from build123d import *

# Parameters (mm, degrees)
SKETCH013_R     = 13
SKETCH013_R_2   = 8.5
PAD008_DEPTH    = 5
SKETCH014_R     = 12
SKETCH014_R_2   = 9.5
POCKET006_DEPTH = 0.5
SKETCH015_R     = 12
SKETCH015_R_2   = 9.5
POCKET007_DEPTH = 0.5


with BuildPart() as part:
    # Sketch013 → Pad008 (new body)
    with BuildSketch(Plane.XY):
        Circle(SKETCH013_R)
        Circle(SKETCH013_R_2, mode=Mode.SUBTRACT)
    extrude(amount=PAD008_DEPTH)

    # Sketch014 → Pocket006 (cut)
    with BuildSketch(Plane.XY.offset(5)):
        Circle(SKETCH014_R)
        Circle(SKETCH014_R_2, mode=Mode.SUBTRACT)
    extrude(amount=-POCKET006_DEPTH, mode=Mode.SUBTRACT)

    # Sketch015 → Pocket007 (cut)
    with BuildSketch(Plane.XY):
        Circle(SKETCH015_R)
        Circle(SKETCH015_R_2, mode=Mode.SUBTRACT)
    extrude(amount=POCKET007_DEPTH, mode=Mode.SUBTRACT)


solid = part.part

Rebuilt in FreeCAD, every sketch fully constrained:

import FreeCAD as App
import Part
import Sketcher
Q = App.Units.Quantity

doc = App.newDocument("Part")
params = doc.addObject("Spreadsheet::Sheet", "Params")
for row, (alias, value) in enumerate([
    ("sketch1_diameter", "26 mm"),
    ("sketch1_diameter2", "17 mm"),
    ("pad1_length", "5 mm"),
    ("sketch2_diameter", "24 mm"),
    ("sketch2_diameter2", "19 mm"),
    ("pocket1_length", "0.5 mm"),
    ("sketch3_diameter", "24 mm"),
    ("sketch3_diameter2", "19 mm"),
    ("pocket2_length", "0.5 mm"),
], start=1):
    params.set(f"A{row}", alias)
    params.set(f"B{row}", "=" + value)
    params.setAlias(f"B{row}", alias)

body = doc.addObject("PartDesign::Body", "Body")

# Sketch on XY plane
sketch1 = body.newObject("Sketcher::SketchObject", "Sketch")
sketch1.AttachmentSupport = (doc.getObject("XY_Plane"), [""])
sketch1.MapMode = "FlatFace"
sketch1.addGeometry([
    Part.Circle(App.Vector(0, 0, 0), App.Vector(0, 0, 1), 13),
    Part.Circle(App.Vector(0, 0, 0), App.Vector(0, 0, 1), 8.5),
], False)
sketch1.addConstraint([
    Sketcher.Constraint("Coincident", 0, 3, -1, 1),
    Sketcher.Constraint("Coincident", 1, 3, -1, 1),
    Sketcher.Constraint("Diameter", 0, Q("26 mm")),
    Sketcher.Constraint("Diameter", 1, Q("17 mm")),
])
sketch1.setExpression("Constraints[2]", "Params.sketch1_diameter")
sketch1.setExpression("Constraints[3]", "Params.sketch1_diameter2")
pad1 = body.newObject("PartDesign::Pad", "Pad")
pad1.Profile = sketch1
pad1.setExpression("Length", "Params.pad1_length")

# Sketch on XY plane
sketch2 = body.newObject("Sketcher::SketchObject", "Sketch001")
sketch2.AttachmentSupport = (doc.getObject("XY_Plane"), [""])
sketch2.MapMode = "FlatFace"
sketch2.AttachmentOffset = App.Placement(App.Vector(0, 0, 5), App.Rotation())
sketch2.addGeometry([
    Part.Circle(App.Vector(0, 0, 0), App.Vector(0, 0, 1), 12),
    Part.Circle(App.Vector(0, 0, 0), App.Vector(0, 0, 1), 9.5),
], False)
sketch2.addConstraint([
    Sketcher.Constraint("Coincident", 0, 3, -1, 1),
    Sketcher.Constraint("Coincident", 1, 3, -1, 1),
    Sketcher.Constraint("Diameter", 0, Q("24 mm")),
    Sketcher.Constraint("Diameter", 1, Q("19 mm")),
])
sketch2.setExpression("Constraints[2]", "Params.sketch2_diameter")
sketch2.setExpression("Constraints[3]", "Params.sketch2_diameter2")
pocket1 = body.newObject("PartDesign::Pocket", "Pocket")
pocket1.Profile = sketch2
pocket1.setExpression("Length", "Params.pocket1_length")

# Sketch on XY plane
sketch3 = body.newObject("Sketcher::SketchObject", "Sketch002")
sketch3.AttachmentSupport = (doc.getObject("XY_Plane"), [""])
sketch3.MapMode = "FlatFace"
sketch3.addGeometry([
    Part.Circle(App.Vector(0, 0, 0), App.Vector(0, 0, 1), 12),
    Part.Circle(App.Vector(0, 0, 0), App.Vector(0, 0, 1), 9.5),
], False)
sketch3.addConstraint([
    Sketcher.Constraint("Coincident", 0, 3, -1, 1),
    Sketcher.Constraint("Coincident", 1, 3, -1, 1),
    Sketcher.Constraint("Diameter", 0, Q("24 mm")),
    Sketcher.Constraint("Diameter", 1, Q("19 mm")),
])
sketch3.setExpression("Constraints[2]", "Params.sketch3_diameter")
sketch3.setExpression("Constraints[3]", "Params.sketch3_diameter2")
pocket2 = body.newObject("PartDesign::Pocket", "Pocket001")
pocket2.Profile = sketch3
pocket2.setExpression("Length", "Params.pocket2_length")
pocket2.Reversed = True

doc.recompute()
